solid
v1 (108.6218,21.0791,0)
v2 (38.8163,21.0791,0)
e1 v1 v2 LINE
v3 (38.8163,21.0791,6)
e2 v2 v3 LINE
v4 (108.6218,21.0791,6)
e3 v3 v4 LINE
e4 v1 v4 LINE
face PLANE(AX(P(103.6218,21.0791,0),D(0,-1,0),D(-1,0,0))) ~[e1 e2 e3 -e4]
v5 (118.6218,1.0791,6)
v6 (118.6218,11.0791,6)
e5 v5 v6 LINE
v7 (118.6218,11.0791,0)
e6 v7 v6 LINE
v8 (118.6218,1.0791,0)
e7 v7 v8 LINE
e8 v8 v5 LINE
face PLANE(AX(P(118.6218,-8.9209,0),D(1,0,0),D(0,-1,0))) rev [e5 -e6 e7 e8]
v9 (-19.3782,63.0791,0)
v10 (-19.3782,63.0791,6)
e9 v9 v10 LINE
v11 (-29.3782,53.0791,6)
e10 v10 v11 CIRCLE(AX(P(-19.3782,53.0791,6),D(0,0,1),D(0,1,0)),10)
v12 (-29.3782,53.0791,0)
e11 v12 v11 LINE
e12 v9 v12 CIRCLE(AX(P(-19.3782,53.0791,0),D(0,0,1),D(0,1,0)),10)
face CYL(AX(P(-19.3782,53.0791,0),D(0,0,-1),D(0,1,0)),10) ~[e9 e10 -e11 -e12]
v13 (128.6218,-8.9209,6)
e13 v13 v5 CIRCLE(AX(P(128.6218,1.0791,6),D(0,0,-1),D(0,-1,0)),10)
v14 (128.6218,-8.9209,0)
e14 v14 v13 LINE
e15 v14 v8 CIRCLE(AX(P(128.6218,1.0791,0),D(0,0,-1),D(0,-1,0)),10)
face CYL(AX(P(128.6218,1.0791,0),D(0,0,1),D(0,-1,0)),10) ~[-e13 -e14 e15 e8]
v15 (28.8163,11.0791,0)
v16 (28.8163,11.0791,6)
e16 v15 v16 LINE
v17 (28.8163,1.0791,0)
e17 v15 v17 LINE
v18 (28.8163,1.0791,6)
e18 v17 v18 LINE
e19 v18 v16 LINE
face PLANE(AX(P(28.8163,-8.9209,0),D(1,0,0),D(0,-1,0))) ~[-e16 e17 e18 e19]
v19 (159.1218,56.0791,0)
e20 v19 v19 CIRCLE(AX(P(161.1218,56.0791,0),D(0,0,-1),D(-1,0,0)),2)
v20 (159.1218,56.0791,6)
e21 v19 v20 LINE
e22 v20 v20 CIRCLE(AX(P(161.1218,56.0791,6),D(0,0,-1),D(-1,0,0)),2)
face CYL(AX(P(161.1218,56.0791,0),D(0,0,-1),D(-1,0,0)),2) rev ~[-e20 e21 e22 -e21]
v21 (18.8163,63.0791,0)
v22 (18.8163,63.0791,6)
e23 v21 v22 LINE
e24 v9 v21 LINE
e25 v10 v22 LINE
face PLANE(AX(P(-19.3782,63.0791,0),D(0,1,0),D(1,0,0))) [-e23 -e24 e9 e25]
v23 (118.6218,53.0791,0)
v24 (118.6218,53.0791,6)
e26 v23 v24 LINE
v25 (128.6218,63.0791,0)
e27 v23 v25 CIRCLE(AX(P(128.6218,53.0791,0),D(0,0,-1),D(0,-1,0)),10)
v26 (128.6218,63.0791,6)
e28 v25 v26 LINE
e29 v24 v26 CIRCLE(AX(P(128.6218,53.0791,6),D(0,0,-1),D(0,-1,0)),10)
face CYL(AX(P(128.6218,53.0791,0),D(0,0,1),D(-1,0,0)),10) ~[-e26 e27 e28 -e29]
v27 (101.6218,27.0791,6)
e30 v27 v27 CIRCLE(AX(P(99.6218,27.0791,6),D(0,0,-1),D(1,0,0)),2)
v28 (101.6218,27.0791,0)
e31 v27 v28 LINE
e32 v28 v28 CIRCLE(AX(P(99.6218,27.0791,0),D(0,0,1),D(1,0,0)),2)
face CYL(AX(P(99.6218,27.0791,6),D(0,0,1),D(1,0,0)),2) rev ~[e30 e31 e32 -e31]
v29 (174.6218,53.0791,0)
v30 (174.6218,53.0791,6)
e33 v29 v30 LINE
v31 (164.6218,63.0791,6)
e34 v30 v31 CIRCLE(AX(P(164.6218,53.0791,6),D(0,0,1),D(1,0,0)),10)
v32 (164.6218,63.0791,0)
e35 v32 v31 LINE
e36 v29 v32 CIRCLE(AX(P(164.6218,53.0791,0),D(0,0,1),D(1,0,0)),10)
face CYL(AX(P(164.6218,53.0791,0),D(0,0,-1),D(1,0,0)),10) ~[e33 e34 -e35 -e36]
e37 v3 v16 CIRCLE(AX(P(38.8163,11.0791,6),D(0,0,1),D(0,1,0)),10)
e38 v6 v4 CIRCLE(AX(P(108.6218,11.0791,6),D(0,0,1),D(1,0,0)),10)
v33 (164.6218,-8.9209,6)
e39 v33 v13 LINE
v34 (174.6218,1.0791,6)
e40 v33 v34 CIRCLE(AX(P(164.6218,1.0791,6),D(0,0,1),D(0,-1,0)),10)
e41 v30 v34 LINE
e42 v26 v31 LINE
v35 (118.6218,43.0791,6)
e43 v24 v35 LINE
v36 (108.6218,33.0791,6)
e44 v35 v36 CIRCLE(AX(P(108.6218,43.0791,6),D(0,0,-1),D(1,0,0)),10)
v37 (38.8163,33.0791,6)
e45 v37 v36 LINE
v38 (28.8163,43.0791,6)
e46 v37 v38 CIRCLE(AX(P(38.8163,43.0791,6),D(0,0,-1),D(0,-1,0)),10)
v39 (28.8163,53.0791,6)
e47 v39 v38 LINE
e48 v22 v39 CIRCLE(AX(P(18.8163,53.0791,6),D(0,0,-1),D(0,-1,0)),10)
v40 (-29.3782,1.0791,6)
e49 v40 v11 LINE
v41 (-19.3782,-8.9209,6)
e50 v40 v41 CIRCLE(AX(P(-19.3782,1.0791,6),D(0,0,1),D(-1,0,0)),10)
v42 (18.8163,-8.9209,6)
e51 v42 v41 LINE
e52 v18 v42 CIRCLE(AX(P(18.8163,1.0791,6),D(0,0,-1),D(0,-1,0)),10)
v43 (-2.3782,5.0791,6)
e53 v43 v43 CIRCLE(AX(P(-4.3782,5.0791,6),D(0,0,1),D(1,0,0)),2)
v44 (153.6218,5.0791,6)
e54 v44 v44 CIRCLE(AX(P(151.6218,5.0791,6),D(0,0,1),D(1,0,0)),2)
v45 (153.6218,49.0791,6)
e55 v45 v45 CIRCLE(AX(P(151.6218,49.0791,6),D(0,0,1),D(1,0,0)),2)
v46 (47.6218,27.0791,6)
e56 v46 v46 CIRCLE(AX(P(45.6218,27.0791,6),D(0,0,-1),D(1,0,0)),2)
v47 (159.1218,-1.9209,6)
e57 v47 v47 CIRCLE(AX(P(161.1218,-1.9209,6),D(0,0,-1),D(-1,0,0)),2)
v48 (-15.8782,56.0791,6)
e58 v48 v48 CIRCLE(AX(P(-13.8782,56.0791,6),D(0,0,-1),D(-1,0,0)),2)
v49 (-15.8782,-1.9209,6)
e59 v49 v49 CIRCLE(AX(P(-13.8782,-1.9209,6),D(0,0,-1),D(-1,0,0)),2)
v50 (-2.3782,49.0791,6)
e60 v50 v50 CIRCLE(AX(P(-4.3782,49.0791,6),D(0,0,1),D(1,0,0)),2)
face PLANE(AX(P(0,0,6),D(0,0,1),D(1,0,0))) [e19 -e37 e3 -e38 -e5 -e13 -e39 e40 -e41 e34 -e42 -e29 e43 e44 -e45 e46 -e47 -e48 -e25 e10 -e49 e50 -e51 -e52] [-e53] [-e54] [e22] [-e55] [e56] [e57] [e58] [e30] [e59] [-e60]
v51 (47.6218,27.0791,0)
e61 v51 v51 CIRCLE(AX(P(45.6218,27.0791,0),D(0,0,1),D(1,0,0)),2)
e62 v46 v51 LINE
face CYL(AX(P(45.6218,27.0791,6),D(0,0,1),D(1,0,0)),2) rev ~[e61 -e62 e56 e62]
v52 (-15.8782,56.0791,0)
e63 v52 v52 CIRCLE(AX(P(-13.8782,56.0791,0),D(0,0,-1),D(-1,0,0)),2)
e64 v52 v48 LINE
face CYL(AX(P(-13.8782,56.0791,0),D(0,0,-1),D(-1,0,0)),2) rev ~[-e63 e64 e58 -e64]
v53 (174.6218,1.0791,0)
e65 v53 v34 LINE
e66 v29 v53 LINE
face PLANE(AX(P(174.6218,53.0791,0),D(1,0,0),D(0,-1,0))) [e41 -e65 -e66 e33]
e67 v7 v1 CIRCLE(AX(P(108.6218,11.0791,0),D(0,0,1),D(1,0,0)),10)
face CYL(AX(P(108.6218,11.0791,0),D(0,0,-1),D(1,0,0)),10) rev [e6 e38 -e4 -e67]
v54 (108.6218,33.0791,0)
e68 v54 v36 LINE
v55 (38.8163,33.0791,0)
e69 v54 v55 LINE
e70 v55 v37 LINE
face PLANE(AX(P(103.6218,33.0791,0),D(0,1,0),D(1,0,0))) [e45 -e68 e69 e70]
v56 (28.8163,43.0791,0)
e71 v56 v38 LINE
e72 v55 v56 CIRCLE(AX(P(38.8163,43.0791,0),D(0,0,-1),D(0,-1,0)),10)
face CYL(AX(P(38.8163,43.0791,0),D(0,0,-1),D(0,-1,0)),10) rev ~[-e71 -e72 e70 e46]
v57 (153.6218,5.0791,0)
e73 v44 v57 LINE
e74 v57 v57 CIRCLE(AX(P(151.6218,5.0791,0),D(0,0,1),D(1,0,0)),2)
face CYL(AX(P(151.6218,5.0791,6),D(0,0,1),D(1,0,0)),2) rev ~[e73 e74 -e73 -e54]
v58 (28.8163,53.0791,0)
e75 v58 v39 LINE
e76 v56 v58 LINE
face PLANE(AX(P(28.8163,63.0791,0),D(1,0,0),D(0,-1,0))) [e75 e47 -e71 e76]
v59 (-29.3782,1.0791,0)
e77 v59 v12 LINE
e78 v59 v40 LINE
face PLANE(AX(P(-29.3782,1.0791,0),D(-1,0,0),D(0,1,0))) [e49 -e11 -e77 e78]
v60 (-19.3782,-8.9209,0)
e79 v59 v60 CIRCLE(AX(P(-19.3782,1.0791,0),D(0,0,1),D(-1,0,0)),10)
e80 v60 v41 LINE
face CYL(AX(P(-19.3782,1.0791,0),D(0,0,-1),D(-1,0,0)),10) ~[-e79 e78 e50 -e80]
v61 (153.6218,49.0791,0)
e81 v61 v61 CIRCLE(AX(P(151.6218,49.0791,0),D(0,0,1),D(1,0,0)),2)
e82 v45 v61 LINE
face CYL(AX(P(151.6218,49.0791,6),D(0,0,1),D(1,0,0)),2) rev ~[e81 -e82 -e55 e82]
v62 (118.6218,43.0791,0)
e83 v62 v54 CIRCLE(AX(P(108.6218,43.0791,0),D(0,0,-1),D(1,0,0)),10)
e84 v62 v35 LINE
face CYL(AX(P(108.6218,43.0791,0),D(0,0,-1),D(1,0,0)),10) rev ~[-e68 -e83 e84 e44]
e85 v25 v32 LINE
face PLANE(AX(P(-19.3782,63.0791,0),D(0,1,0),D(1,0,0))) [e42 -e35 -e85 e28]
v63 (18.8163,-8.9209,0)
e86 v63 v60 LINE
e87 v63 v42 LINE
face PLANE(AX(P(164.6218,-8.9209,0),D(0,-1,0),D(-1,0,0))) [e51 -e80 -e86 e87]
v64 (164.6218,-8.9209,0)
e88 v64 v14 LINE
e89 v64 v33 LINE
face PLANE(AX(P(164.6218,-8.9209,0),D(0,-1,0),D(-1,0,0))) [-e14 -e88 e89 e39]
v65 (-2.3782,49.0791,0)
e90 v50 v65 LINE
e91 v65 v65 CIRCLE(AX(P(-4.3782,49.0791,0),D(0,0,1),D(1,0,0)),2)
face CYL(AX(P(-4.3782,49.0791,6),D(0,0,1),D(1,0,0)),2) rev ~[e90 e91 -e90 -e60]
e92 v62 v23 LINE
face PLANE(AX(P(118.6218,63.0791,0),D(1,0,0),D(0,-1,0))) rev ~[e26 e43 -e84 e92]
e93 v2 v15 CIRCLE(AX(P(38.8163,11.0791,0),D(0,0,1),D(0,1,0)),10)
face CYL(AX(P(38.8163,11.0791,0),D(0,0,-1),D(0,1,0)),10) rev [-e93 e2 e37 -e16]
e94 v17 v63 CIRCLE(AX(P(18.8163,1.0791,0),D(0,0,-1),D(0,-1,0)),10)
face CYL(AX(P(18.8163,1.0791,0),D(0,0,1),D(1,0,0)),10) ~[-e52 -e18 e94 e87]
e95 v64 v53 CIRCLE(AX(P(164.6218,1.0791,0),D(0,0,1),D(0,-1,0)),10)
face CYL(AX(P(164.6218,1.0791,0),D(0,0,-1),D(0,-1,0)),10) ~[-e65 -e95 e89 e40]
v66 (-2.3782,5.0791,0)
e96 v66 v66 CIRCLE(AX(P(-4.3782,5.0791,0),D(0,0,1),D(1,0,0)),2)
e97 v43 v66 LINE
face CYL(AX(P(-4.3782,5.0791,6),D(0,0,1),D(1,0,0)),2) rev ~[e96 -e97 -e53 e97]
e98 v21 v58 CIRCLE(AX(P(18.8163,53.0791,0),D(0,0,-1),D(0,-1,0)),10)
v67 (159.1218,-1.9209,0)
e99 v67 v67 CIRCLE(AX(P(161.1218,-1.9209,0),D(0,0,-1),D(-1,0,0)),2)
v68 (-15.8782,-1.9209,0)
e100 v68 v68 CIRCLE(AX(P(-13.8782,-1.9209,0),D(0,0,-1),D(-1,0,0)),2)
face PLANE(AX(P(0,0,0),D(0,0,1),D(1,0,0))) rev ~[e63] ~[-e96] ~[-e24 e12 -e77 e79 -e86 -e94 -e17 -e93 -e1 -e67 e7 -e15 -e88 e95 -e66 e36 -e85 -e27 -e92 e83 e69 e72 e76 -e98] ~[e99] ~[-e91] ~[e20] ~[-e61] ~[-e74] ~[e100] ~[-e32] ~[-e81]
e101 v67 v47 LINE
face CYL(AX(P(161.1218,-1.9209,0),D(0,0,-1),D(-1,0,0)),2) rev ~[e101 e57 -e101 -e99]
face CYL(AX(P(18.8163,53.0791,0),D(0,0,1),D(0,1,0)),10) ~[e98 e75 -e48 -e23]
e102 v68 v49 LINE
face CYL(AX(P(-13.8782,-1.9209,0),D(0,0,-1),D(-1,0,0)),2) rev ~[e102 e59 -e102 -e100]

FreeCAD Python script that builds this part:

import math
import FreeCAD as App
import Part
import Sketcher
Q = App.Units.Quantity


def edges_at(feature, points):
    """Names of the edges that pass closest to the given points."""
    edges = feature.Shape.Edges
    near = lambda p: min(range(len(edges)), key=lambda i: edges[i].distToShape(Part.Vertex(*p))[0])
    return sorted({f"Edge{near(p) + 1}" for p in points})

doc = App.newDocument("Part")
params = doc.addObject("Spreadsheet::Sheet", "Params")
for row, (alias, value) in enumerate([
    ("sketch1_radius", "10 mm"),
    ("sketch1_width", "184 mm"),
    ("pad1_length", "6 mm"),
    ("sketch2_diameter", "4 mm"),
    ("pocket1_length", "6 mm"),
    ("sketch3_radius", "10 mm"),
    ("pocket2_length", "6 mm"),
    ("fillet_radius", "10 mm"),
    ("sketch4_diameter", "4 mm"),
    ("pocket3_length", "6 mm"),
    ("sketch5_diameter", "4 mm"),
    ("pocket4_length", "6 mm"),
], start=1):
    params.set(f"A{row}", alias)
    params.set(f"B{row}", "=" + value)
    params.setAlias(f"B{row}", alias)

body = doc.addObject("PartDesign::Body", "Body")

sketch1 = doc.addObject("Sketcher::SketchObject", "Sketch")
body.addObject(sketch1)
sketch1.AttachmentSupport = (doc.XY_Plane, [""])
sketch1.MapMode = "FlatFace"
sketch1.addGeometry(Part.LineSegment(App.Vector(165, 63, 0), App.Vector(-19, 63, 0)), False)
sketch1.addGeometry(Part.ArcOfCircle(Part.Circle(App.Vector(-19, 53, 0), App.Vector(0, 0, 1), 10), math.radians(90), math.radians(180)), False)
sketch1.addGeometry(Part.LineSegment(App.Vector(-29, 53, 0), App.Vector(-29, 1, 0)), False)
sketch1.addGeometry(Part.ArcOfCircle(Part.Circle(App.Vector(-19, 1, 0), App.Vector(0, 0, 1), 10), math.radians(180), math.radians(270)), False)
sketch1.addGeometry(Part.LineSegment(App.Vector(-19, -9, 0), App.Vector(165, -9, 0)), False)
sketch1.addGeometry(Part.ArcOfCircle(Part.Circle(App.Vector(165, 1, 0), App.Vector(0, 0, 1), 10), math.radians(-90), math.radians(0)), False)
sketch1.addGeometry(Part.LineSegment(App.Vector(175, 1, 0), App.Vector(175, 53, 0)), False)
sketch1.addGeometry(Part.ArcOfCircle(Part.Circle(App.Vector(165, 53, 0), App.Vector(0, 0, 1), 10), math.radians(0), math.radians(90)), False)
sketch1.addConstraint(Sketcher.Constraint("Tangent", 0, 2, 1, 1))
sketch1.addConstraint(Sketcher.Constraint("Tangent", 1, 2, 2, 1))
sketch1.addConstraint(Sketcher.Constraint("Tangent", 2, 2, 3, 1))
sketch1.addConstraint(Sketcher.Constraint("Tangent", 3, 2, 4, 1))
sketch1.addConstraint(Sketcher.Constraint("Tangent", 4, 2, 5, 1))
sketch1.addConstraint(Sketcher.Constraint("Tangent", 5, 2, 6, 1))
sketch1.addConstraint(Sketcher.Constraint("Tangent", 6, 2, 7, 1))
sketch1.addConstraint(Sketcher.Constraint("Tangent", 7, 2, 0, 1))
sketch1.addConstraint(Sketcher.Constraint("Horizontal", 0))
sketch1.addConstraint(Sketcher.Constraint("Vertical", 2))
sketch1.addConstraint(Sketcher.Constraint("Horizontal", 4))
sketch1.addConstraint(Sketcher.Constraint("Vertical", 6))
sketch1.addConstraint(Sketcher.Constraint("Equal", 1, 3))
sketch1.addConstraint(Sketcher.Constraint("Equal", 3, 5))
sketch1.addConstraint(Sketcher.Constraint("Equal", 5, 7))
sketch1.addConstraint(Sketcher.Constraint("Radius", 1, Q("10 mm")))
sketch1.addConstraint(Sketcher.Constraint("DistanceY", 3, 2, 0, 2, Q("72 mm")))
sketch1.addConstraint(Sketcher.Constraint("DistanceX", 0, 2, 0, 1, Q("184 mm")))
sketch1.addConstraint(Sketcher.Constraint("DistanceY", -1, 1, 1, 3, Q("53.079 mm")))
sketch1.addConstraint(Sketcher.Constraint("DistanceX", 1, 3, -1, 1, Q("19.3782 mm")))
sketch1.setExpression("Constraints[15]", "Params.sketch1_radius")
sketch1.setExpression("Constraints[17]", "Params.sketch1_width")
pad1 = doc.addObject("PartDesign::Pad", "Pad")
body.addObject(pad1)
pad1.Profile = sketch1
pad1.setExpression("Length", "Params.pad1_length")

sketch2 = doc.addObject("Sketcher::SketchObject", "Sketch001")
body.addObject(sketch2)
sketch2.AttachmentSupport = (doc.XY_Plane, [""])
sketch2.MapMode = "FlatFace"
sketch2.AttachmentOffset = App.Placement(App.Vector(0, 0, 6), App.Rotation())
sketch2.addGeometry(Part.Circle(App.Vector(-4.4, 5.1, 0), App.Vector(0, 0, 1), 2), False)
sketch2.addGeometry(Part.Circle(App.Vector(-4.4, 49.1, 0), App.Vector(0, 0, 1), 2), False)
sketch2.addGeometry(Part.Circle(App.Vector(151.6, 5.1, 0), App.Vector(0, 0, 1), 2), False)
sketch2.addGeometry(Part.Circle(App.Vector(151.6, 49.1, 0), App.Vector(0, 0, 1), 2), False)
sketch2.addConstraint(Sketcher.Constraint("Equal", 0, 1))
sketch2.addConstraint(Sketcher.Constraint("Equal", 1, 2))
sketch2.addConstraint(Sketcher.Constraint("Equal", 2, 3))
sketch2.addConstraint(Sketcher.Constraint("Horizontal", 0, 3, 2, 3))
sketch2.addConstraint(Sketcher.Constraint("Horizontal", 1, 3, 3, 3))
sketch2.addConstraint(Sketcher.Constraint("Vertical", 0, 3, 1, 3))
sketch2.addConstraint(Sketcher.Constraint("Vertical", 2, 3, 3, 3))
sketch2.addConstraint(Sketcher.Constraint("Diameter", 0, Q("4 mm")))
sketch2.addConstraint(Sketcher.Constraint("DistanceX", 0, 3, 2, 3, Q("156 mm")))
sketch2.addConstraint(Sketcher.Constraint("DistanceY", 0, 3, 1, 3, Q("44 mm")))
sketch2.addConstraint(Sketcher.Constraint("DistanceY", -1, 1, 0, 3, Q("5.079 mm")))
sketch2.addConstraint(Sketcher.Constraint("DistanceX", 0, 3, -1, 1, Q("4.3782 mm")))
sketch2.setExpression("Constraints[7]", "Params.sketch2_diameter")
pocket1 = doc.addObject("PartDesign::Pocket", "Pocket")
body.addObject(pocket1)
pocket1.Profile = sketch2
pocket1.setExpression("Length", "Params.pocket1_length")

sketch3 = doc.addObject("Sketcher::SketchObject", "Sketch002")
body.addObject(sketch3)
sketch3.AttachmentSupport = (doc.XY_Plane, [""])
sketch3.MapMode = "FlatFace"
sketch3.addGeometry(Part.LineSegment(App.Vector(119, 63, 0), App.Vector(119, 43, 0)), False)
sketch3.addGeometry(Part.ArcOfCircle(Part.Circle(App.Vector(109, 43, 0), App.Vector(0, 0, 1), 10), math.radians(-90), math.radians(0)), False)
sketch3.addGeometry(Part.LineSegment(App.Vector(109, 33, 0), App.Vector(39, 33, 0)), False)
sketch3.addGeometry(Part.ArcOfCircle(Part.Circle(App.Vector(39, 43, 0), App.Vector(0, 0, 1), 10), math.radians(180), math.radians(270)), False)
sketch3.addGeometry(Part.LineSegment(App.Vector(29, 43, 0), App.Vector(29, 63, 0)), False)
sketch3.addGeometry(Part.LineSegment(App.Vector(29, 63, 0), App.Vector(119, 63, 0)), False)
sketch3.addConstraint(Sketcher.Constraint("Tangent", 0, 2, 1, 2))
sketch3.addConstraint(Sketcher.Constraint("Tangent", 1, 1, 2, 1))
sketch3.addConstraint(Sketcher.Constraint("Tangent", 2, 2, 3, 2))
sketch3.addConstraint(Sketcher.Constraint("Tangent", 3, 1, 4, 1))
sketch3.addConstraint(Sketcher.Constraint("Coincident", 4, 2, 5, 1))
sketch3.addConstraint(Sketcher.Constraint("Coincident", 5, 2, 0, 1))
sketch3.addConstraint(Sketcher.Constraint("Vertical", 0))
sketch3.addConstraint(Sketcher.Constraint("Horizontal", 2))
sketch3.addConstraint(Sketcher.Constraint("Vertical", 4))
sketch3.addConstraint(Sketcher.Constraint("Horizontal", 5))
sketch3.addConstraint(Sketcher.Constraint("Equal", 1, 3))
sketch3.addConstraint(Sketcher.Constraint("Radius", 1, Q("10 mm")))
sketch3.addConstraint(Sketcher.Constraint("DistanceY", 2, 2, 4, 2, Q("30 mm")))
sketch3.addConstraint(Sketcher.Constraint("DistanceX", 2, 2, 2, 1, Q("69.8055 mm")))
sketch3.addConstraint(Sketcher.Constraint("DistanceY", -1, 1, 1, 3, Q("43.079 mm")))
sketch3.addConstraint(Sketcher.Constraint("DistanceX", -1, 1, 1, 3, Q("108.6218 mm")))
sketch3.setExpression("Constraints[11]", "Params.sketch3_radius")
pocket2 = doc.addObject("PartDesign::Pocket", "Pocket001")
body.addObject(pocket2)
pocket2.Profile = sketch3
pocket2.setExpression("Length", "Params.pocket2_length")
pocket2.Reversed = True
doc.recompute()

datumplane = doc.addObject("PartDesign::Plane", "DatumPlane")
body.addObject(datumplane)
datumplane.AttachmentSupport = (doc.XZ_Plane, [""])
datumplane.MapMode = "FlatFace"
datumplane.AttachmentOffset = App.Placement(App.Vector(0, 0, -27.0791), App.Rotation())
mirrored = doc.addObject("PartDesign::Mirrored", "Mirrored")
body.addObject(mirrored)
mirrored.Originals = [pocket2]
mirrored.MirrorPlane = (datumplane, [""])
body.Tip = mirrored
doc.recompute()

fillet = doc.addObject("PartDesign::Fillet", "Fillet")
body.addObject(fillet)
fillet.Base = (mirrored, edges_at(mirrored, [
    (118.622, 63.079, 3),
    (28.816, 63.079, 3),
    (28.816, -8.921, 3),
    (118.622, -8.921, 3),
]))
fillet.setExpression("Radius", "Params.fillet_radius")

sketch4 = doc.addObject("Sketcher::SketchObject", "Sketch003")
body.addObject(sketch4)
sketch4.AttachmentSupport = (doc.XY_Plane, [""])
sketch4.MapMode = "FlatFace"
sketch4.addGeometry(Part.Circle(App.Vector(-13.9, -1.9, 0), App.Vector(0, 0, 1), 2), False)
sketch4.addGeometry(Part.Circle(App.Vector(-13.9, 56.1, 0), App.Vector(0, 0, 1), 2), False)
sketch4.addGeometry(Part.Circle(App.Vector(161.1, 56.1, 0), App.Vector(0, 0, 1), 2), False)
sketch4.addGeometry(Part.Circle(App.Vector(161.1, -1.9, 0), App.Vector(0, 0, 1), 2), False)
sketch4.addConstraint(Sketcher.Constraint("Equal", 0, 1))
sketch4.addConstraint(Sketcher.Constraint("Equal", 1, 2))
sketch4.addConstraint(Sketcher.Constraint("Equal", 2, 3))
sketch4.addConstraint(Sketcher.Constraint("Horizontal", 1, 3, 2, 3))
sketch4.addConstraint(Sketcher.Constraint("Horizontal", 0, 3, 3, 3))
sketch4.addConstraint(Sketcher.Constraint("Vertical", 0, 3, 1, 3))
sketch4.addConstraint(Sketcher.Constraint("Vertical", 2, 3, 3, 3))
sketch4.addConstraint(Sketcher.Constraint("Diameter", 0, Q("4 mm")))
sketch4.addConstraint(Sketcher.Constraint("DistanceY", 0, 3, 1, 3, Q("58 mm")))
sketch4.addConstraint(Sketcher.Constraint("DistanceX", 1, 3, 2, 3, Q("175 mm")))
sketch4.addConstraint(Sketcher.Constraint("DistanceY", 0, 3, -1, 1, Q("1.921 mm")))
sketch4.addConstraint(Sketcher.Constraint("DistanceX", 0, 3, -1, 1, Q("13.8782 mm")))
sketch4.setExpression("Constraints[7]", "Params.sketch4_diameter")
pocket3 = doc.addObject("PartDesign::Pocket", "Pocket002")
body.addObject(pocket3)
pocket3.Profile = sketch4
pocket3.setExpression("Length", "Params.pocket3_length")
pocket3.Reversed = True

sketch5 = doc.addObject("Sketcher::SketchObject", "Sketch004")
body.addObject(sketch5)
sketch5.AttachmentSupport = (doc.XY_Plane, [""])
sketch5.MapMode = "FlatFace"
sketch5.AttachmentOffset = App.Placement(App.Vector(0, 0, 6), App.Rotation())
sketch5.addGeometry(Part.Circle(App.Vector(45.6, 27.1, 0), App.Vector(0, 0, 1), 2), False)
sketch5.addGeometry(Part.Circle(App.Vector(99.6, 27.1, 0), App.Vector(0, 0, 1), 2), False)
sketch5.addConstraint(Sketcher.Constraint("Equal", 0, 1))
sketch5.addConstraint(Sketcher.Constraint("Horizontal", 0, 3, 1, 3))
sketch5.addConstraint(Sketcher.Constraint("Diameter", 0, Q("4 mm")))
sketch5.addConstraint(Sketcher.Constraint("DistanceX", 0, 3, 1, 3, Q("54 mm")))
sketch5.addConstraint(Sketcher.Constraint("DistanceY", -1, 1, 0, 3, Q("27.079 mm")))
sketch5.addConstraint(Sketcher.Constraint("DistanceX", -1, 1, 0, 3, Q("45.6218 mm")))
sketch5.setExpression("Constraints[2]", "Params.sketch5_diameter")
pocket4 = doc.addObject("PartDesign::Pocket", "Pocket003")
body.addObject(pocket4)
pocket4.Profile = sketch5
pocket4.setExpression("Length", "Params.pocket4_length")

doc.recompute()
